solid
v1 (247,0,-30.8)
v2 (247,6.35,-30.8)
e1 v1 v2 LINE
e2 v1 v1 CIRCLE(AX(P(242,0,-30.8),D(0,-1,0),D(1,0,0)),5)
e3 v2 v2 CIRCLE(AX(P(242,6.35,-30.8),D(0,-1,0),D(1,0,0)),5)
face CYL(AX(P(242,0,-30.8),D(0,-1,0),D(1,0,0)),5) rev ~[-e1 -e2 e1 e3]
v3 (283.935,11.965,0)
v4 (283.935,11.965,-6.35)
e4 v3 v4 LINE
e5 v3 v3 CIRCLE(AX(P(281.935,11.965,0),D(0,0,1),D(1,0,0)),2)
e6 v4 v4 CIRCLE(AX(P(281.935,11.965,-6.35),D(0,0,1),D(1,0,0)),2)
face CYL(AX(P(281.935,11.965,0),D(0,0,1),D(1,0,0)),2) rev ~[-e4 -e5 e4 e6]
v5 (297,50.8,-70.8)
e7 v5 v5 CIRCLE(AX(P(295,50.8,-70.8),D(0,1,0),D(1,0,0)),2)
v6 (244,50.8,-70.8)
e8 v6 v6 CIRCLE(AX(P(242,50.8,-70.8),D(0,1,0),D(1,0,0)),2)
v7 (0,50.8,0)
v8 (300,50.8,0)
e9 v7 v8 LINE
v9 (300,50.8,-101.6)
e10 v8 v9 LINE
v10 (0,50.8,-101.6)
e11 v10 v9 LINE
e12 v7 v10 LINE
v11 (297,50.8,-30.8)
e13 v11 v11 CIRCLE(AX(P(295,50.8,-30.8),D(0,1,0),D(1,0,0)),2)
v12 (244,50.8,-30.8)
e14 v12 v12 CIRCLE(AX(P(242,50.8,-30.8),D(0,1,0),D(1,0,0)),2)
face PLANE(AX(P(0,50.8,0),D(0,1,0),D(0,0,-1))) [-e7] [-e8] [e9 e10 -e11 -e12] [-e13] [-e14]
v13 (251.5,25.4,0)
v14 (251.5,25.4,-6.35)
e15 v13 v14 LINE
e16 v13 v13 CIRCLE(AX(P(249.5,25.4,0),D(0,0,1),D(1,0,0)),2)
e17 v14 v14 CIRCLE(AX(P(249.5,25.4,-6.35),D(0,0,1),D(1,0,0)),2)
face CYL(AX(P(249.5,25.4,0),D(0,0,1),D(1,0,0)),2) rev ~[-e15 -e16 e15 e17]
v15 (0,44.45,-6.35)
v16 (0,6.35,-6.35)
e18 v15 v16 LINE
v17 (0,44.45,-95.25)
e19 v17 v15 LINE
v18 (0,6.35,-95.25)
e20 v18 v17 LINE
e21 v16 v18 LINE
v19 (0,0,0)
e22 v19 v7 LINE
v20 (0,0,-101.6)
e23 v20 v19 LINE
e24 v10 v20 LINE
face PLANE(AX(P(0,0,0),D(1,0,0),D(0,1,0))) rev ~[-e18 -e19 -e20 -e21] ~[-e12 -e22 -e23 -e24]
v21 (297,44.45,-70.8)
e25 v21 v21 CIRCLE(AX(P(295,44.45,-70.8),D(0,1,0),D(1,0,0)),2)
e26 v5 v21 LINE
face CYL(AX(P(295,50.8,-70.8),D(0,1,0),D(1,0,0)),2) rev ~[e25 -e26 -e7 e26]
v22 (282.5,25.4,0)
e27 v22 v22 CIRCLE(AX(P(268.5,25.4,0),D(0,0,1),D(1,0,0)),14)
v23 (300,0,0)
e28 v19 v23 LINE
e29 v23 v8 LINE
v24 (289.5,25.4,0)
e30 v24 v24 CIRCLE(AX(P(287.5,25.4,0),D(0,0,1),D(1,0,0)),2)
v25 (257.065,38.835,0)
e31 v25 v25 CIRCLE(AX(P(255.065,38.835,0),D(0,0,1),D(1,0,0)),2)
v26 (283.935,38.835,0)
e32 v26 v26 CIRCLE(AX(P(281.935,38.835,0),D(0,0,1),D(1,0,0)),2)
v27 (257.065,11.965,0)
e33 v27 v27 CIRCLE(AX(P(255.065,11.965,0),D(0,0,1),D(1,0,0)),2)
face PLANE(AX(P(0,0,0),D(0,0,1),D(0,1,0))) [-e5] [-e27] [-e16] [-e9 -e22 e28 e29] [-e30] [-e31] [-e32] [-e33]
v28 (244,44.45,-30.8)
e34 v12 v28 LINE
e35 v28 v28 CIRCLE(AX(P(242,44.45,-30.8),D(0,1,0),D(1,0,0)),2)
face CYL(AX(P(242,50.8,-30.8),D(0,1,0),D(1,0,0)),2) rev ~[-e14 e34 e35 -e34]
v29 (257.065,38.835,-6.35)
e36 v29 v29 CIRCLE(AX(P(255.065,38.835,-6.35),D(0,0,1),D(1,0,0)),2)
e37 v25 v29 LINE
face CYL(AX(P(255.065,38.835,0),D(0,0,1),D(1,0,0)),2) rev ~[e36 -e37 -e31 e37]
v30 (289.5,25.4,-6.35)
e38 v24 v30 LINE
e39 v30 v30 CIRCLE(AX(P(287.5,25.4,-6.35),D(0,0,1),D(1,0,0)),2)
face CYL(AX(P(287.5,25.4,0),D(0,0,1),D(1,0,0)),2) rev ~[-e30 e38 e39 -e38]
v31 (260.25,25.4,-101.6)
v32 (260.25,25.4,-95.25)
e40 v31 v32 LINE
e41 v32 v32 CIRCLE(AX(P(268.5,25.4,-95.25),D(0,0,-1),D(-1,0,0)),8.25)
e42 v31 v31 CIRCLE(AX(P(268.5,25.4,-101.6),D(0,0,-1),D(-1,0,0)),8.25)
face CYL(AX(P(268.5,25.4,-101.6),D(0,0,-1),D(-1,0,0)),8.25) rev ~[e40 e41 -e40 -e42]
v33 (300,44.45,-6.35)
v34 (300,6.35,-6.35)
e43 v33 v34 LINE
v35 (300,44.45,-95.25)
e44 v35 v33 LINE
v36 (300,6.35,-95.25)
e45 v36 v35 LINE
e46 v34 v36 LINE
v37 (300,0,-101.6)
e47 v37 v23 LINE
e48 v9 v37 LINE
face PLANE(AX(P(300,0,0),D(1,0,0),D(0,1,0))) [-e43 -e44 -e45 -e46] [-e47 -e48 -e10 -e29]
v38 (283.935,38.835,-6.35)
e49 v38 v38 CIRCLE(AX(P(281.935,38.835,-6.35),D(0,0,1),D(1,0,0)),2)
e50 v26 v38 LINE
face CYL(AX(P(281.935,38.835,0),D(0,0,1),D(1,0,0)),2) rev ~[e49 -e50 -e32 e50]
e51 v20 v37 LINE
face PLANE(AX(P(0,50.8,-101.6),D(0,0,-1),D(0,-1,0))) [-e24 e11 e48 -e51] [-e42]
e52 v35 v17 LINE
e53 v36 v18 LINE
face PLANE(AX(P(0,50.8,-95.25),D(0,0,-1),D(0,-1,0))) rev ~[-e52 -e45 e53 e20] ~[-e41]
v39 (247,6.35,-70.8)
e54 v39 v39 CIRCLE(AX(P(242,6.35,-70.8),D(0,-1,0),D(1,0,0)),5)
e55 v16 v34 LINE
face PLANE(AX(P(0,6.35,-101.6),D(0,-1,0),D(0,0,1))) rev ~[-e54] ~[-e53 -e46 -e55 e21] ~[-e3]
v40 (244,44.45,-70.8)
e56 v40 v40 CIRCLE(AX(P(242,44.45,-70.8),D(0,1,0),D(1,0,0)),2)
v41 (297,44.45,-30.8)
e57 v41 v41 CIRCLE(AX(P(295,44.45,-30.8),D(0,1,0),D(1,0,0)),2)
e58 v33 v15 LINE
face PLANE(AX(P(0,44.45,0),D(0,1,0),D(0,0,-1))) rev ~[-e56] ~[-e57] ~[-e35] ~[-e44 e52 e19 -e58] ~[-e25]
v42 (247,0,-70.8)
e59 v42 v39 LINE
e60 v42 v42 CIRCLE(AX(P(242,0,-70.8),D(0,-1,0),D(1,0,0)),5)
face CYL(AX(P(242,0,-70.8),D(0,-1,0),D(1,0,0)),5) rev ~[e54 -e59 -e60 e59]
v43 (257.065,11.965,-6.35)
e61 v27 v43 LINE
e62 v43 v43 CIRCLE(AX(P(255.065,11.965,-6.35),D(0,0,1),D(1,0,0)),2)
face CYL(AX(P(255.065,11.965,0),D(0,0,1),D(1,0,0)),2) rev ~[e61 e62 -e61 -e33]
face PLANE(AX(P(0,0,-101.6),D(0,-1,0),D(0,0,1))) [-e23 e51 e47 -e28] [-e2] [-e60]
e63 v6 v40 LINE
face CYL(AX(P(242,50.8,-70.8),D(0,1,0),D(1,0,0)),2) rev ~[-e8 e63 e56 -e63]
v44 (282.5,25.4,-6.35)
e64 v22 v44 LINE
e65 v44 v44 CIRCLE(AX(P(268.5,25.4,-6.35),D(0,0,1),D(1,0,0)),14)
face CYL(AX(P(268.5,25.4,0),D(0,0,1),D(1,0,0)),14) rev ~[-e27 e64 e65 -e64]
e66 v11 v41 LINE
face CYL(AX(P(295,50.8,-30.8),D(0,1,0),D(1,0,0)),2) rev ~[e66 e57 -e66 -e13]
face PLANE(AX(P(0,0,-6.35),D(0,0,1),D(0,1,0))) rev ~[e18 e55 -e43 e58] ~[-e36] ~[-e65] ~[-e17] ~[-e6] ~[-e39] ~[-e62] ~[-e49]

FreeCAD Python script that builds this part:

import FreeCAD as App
import Part
import Sketcher


def faces_at(feature, points):
    """Names of the faces that lie closest to the given points."""
    faces = feature.Shape.Faces
    near = lambda p: min(range(len(faces)), key=lambda i: faces[i].distToShape(Part.Vertex(*p))[0])
    return sorted({f"Face{near(p) + 1}" for p in points})

doc = App.newDocument("Part")
body = doc.addObject("PartDesign::Body", "Body")

# Sketch on YZ plane
sketch1 = body.newObject("Sketcher::SketchObject", "Sketch")
sketch1.AttachmentSupport = (doc.getObject("YZ_Plane"), [""])
sketch1.MapMode = "FlatFace"
sketch1.addGeometry([
    Part.LineSegment(App.Vector(51, 0, 0), App.Vector(0, 0, 0)),
    Part.LineSegment(App.Vector(0, 0, 0), App.Vector(0, -102, 0)),
    Part.LineSegment(App.Vector(0, -102, 0), App.Vector(51, -102, 0)),
    Part.LineSegment(App.Vector(51, -102, 0), App.Vector(51, 0, 0)),
], False)
sketch1.addConstraint([
    Sketcher.Constraint("Coincident", 0, 2, 1, 1),
    Sketcher.Constraint("Coincident", 1, 2, 2, 1),
    Sketcher.Constraint("Coincident", 2, 2, 3, 1),
    Sketcher.Constraint("Coincident", 3, 2, 0, 1),
    Sketcher.Constraint("Horizontal", 0),
    Sketcher.Constraint("Vertical", 1),
    Sketcher.Constraint("Horizontal", 2),
    Sketcher.Constraint("Vertical", 3),
    Sketcher.Constraint("Coincident", 0, 2, -1, 1),
    Sketcher.Constraint("DistanceX", 0, 2, 0, 1, 50.8),
    Sketcher.Constraint("DistanceY", 1, 2, 1, 1, 101.6),
])
pad1 = body.newObject("PartDesign::Pad", "Pad")
pad1.Profile = sketch1
pad1.Length = 300
doc.recompute()

thickness = body.newObject("PartDesign::Thickness", "Thickness")
thickness.Base = (pad1, faces_at(pad1, [(0, 16.933, -33.867), (300, 16.933, -33.867)]))
thickness.Value = 6.35
thickness.Reversed = True
thickness.Join = "Intersection"

# Sketch on XZ plane
sketch2 = body.newObject("Sketcher::SketchObject", "Sketch001")
sketch2.AttachmentSupport = (doc.getObject("XZ_Plane"), [""])
sketch2.MapMode = "FlatFace"
sketch2.AttachmentOffset = App.Placement(App.Vector(0, 0, -50.8), App.Rotation())
sketch2.addGeometry([
    Part.Circle(App.Vector(295, -70.8, 0), App.Vector(0, 0, 1), 2),
    Part.Circle(App.Vector(295, -30.8, 0), App.Vector(0, 0, 1), 2),
    Part.Circle(App.Vector(242, -70.8, 0), App.Vector(0, 0, 1), 2),
    Part.Circle(App.Vector(242, -30.8, 0), App.Vector(0, 0, 1), 2),
], False)
sketch2.addConstraint([
    Sketcher.Constraint("Equal", 0, 1),
    Sketcher.Constraint("Equal", 1, 2),
    Sketcher.Constraint("Equal", 2, 3),
    Sketcher.Constraint("Horizontal", 0, 3, 2, 3),
    Sketcher.Constraint("Horizontal", 1, 3, 3, 3),
    Sketcher.Constraint("Vertical", 0, 3, 1, 3),
    Sketcher.Constraint("Vertical", 2, 3, 3, 3),
    Sketcher.Constraint("Diameter", 0, 4.0),
    Sketcher.Constraint("DistanceY", 0, 3, 1, 3, 40.0),
    Sketcher.Constraint("DistanceX", 2, 3, 0, 3, 53.0),
    Sketcher.Constraint("DistanceX", -1, 1, 0, 3, 295.0),
    Sketcher.Constraint("DistanceY", 0, 3, -1, 1, 70.8),
])
pocket1 = body.newObject("PartDesign::Pocket", "Pocket")
pocket1.Profile = sketch2
pocket1.Length = 6.35
pocket1.Reversed = True

# Sketch on XY plane
sketch3 = body.newObject("Sketcher::SketchObject", "Sketch002")
sketch3.AttachmentSupport = (doc.getObject("XY_Plane"), [""])
sketch3.MapMode = "FlatFace"
sketch3.addGeometry([
    Part.Circle(App.Vector(255.1, 12, 0), App.Vector(0, 0, 1), 2),  # 0
    Part.Circle(App.Vector(281.9, 12, 0), App.Vector(0, 0, 1), 2),  # 1
    Part.Circle(App.Vector(281.9, 38.8, 0), App.Vector(0, 0, 1), 2),  # 2
    Part.Circle(App.Vector(287.5, 25.4, 0), App.Vector(0, 0, 1), 2),  # 3
    Part.Circle(App.Vector(255.1, 38.8, 0), App.Vector(0, 0, 1), 2),  # 4
    Part.Circle(App.Vector(249.5, 25.4, 0), App.Vector(0, 0, 1), 2),  # 5
    Part.Circle(App.Vector(268.5, 25.4, 0), App.Vector(0, 0, 1), 14),  # 6
], False)
sketch3.addConstraint([
    Sketcher.Constraint("Equal", 0, 1),
    Sketcher.Constraint("Equal", 1, 2),
    Sketcher.Constraint("Equal", 2, 3),
    Sketcher.Constraint("Equal", 3, 4),
    Sketcher.Constraint("Equal", 4, 5),
    Sketcher.Constraint("Horizontal", 0, 3, 1, 3),
    Sketcher.Constraint("Horizontal", 2, 3, 4, 3),
    Sketcher.Constraint("Horizontal", 3, 3, 5, 3),
    Sketcher.Constraint("Horizontal", 5, 3, 6, 3),
    Sketcher.Constraint("Vertical", 1, 3, 2, 3),
    Sketcher.Constraint("Vertical", 0, 3, 4, 3),
    Sketcher.Constraint("Diameter", 0, 4.0),
    Sketcher.Constraint("Diameter", 6, 28.0),
    Sketcher.Constraint("DistanceX", 5, 3, 3, 3, 38.0),
    Sketcher.Constraint("DistanceX", 6, 3, 3, 3, 19.0),
    Sketcher.Constraint("DistanceX", -1, 1, 3, 3, 287.5),
    Sketcher.Constraint("DistanceY", -1, 1, 3, 3, 25.4),
    Sketcher.Constraint("DistanceX", 0, 3, 1, 3, 26.87),
    Sketcher.Constraint("DistanceY", 1, 3, 2, 3, 26.87),
    Sketcher.Constraint("DistanceX", -1, 1, 0, 3, 255.065),
    Sketcher.Constraint("DistanceY", -1, 1, 0, 3, 11.965),
])
pocket2 = body.newObject("PartDesign::Pocket", "Pocket001")
pocket2.Profile = sketch3
pocket2.Length = 6.35

# Sketch on XY plane
sketch4 = body.newObject("Sketcher::SketchObject", "Sketch003")
sketch4.AttachmentSupport = (doc.getObject("XY_Plane"), [""])
sketch4.MapMode = "FlatFace"
sketch4.AttachmentOffset = App.Placement(App.Vector(0, 0, -101.6), App.Rotation())
sketch4.addGeometry(Part.Circle(App.Vector(268, 25, 0), App.Vector(0, 0, 1), 8), False)
sketch4.addConstraint([
    Sketcher.Constraint("Diameter", 0, 16.5),
    Sketcher.Constraint("DistanceX", -1, 1, 0, 3, 268.5),
    Sketcher.Constraint("DistanceY", -1, 1, 0, 3, 25.4),
])
pocket3 = body.newObject("PartDesign::Pocket", "Pocket002")
pocket3.Profile = sketch4
pocket3.Length = 6.35
pocket3.Reversed = True

# Sketch on XZ plane
sketch5 = body.newObject("Sketcher::SketchObject", "Sketch004")
sketch5.AttachmentSupport = (doc.getObject("XZ_Plane"), [""])
sketch5.MapMode = "FlatFace"
sketch5.addGeometry([
    Part.Circle(App.Vector(242, -71, 0), App.Vector(0, 0, 1), 5),
    Part.Circle(App.Vector(242, -31, 0), App.Vector(0, 0, 1), 5),
], False)
sketch5.addConstraint([
    Sketcher.Constraint("Equal", 0, 1),
    Sketcher.Constraint("Vertical", 0, 3, 1, 3),
    Sketcher.Constraint("Diameter", 0, 10.0),
    Sketcher.Constraint("DistanceX", -1, 1, 0, 3, 242.0),
    Sketcher.Constraint("DistanceY", 0, 3, 1, 3, 40.0),
    Sketcher.Constraint("DistanceY", 0, 3, -1, 1, 70.8),
])
pocket4 = body.newObject("PartDesign::Pocket", "Pocket003")
pocket4.Profile = sketch5
pocket4.Length = 6.35

doc.recompute()
